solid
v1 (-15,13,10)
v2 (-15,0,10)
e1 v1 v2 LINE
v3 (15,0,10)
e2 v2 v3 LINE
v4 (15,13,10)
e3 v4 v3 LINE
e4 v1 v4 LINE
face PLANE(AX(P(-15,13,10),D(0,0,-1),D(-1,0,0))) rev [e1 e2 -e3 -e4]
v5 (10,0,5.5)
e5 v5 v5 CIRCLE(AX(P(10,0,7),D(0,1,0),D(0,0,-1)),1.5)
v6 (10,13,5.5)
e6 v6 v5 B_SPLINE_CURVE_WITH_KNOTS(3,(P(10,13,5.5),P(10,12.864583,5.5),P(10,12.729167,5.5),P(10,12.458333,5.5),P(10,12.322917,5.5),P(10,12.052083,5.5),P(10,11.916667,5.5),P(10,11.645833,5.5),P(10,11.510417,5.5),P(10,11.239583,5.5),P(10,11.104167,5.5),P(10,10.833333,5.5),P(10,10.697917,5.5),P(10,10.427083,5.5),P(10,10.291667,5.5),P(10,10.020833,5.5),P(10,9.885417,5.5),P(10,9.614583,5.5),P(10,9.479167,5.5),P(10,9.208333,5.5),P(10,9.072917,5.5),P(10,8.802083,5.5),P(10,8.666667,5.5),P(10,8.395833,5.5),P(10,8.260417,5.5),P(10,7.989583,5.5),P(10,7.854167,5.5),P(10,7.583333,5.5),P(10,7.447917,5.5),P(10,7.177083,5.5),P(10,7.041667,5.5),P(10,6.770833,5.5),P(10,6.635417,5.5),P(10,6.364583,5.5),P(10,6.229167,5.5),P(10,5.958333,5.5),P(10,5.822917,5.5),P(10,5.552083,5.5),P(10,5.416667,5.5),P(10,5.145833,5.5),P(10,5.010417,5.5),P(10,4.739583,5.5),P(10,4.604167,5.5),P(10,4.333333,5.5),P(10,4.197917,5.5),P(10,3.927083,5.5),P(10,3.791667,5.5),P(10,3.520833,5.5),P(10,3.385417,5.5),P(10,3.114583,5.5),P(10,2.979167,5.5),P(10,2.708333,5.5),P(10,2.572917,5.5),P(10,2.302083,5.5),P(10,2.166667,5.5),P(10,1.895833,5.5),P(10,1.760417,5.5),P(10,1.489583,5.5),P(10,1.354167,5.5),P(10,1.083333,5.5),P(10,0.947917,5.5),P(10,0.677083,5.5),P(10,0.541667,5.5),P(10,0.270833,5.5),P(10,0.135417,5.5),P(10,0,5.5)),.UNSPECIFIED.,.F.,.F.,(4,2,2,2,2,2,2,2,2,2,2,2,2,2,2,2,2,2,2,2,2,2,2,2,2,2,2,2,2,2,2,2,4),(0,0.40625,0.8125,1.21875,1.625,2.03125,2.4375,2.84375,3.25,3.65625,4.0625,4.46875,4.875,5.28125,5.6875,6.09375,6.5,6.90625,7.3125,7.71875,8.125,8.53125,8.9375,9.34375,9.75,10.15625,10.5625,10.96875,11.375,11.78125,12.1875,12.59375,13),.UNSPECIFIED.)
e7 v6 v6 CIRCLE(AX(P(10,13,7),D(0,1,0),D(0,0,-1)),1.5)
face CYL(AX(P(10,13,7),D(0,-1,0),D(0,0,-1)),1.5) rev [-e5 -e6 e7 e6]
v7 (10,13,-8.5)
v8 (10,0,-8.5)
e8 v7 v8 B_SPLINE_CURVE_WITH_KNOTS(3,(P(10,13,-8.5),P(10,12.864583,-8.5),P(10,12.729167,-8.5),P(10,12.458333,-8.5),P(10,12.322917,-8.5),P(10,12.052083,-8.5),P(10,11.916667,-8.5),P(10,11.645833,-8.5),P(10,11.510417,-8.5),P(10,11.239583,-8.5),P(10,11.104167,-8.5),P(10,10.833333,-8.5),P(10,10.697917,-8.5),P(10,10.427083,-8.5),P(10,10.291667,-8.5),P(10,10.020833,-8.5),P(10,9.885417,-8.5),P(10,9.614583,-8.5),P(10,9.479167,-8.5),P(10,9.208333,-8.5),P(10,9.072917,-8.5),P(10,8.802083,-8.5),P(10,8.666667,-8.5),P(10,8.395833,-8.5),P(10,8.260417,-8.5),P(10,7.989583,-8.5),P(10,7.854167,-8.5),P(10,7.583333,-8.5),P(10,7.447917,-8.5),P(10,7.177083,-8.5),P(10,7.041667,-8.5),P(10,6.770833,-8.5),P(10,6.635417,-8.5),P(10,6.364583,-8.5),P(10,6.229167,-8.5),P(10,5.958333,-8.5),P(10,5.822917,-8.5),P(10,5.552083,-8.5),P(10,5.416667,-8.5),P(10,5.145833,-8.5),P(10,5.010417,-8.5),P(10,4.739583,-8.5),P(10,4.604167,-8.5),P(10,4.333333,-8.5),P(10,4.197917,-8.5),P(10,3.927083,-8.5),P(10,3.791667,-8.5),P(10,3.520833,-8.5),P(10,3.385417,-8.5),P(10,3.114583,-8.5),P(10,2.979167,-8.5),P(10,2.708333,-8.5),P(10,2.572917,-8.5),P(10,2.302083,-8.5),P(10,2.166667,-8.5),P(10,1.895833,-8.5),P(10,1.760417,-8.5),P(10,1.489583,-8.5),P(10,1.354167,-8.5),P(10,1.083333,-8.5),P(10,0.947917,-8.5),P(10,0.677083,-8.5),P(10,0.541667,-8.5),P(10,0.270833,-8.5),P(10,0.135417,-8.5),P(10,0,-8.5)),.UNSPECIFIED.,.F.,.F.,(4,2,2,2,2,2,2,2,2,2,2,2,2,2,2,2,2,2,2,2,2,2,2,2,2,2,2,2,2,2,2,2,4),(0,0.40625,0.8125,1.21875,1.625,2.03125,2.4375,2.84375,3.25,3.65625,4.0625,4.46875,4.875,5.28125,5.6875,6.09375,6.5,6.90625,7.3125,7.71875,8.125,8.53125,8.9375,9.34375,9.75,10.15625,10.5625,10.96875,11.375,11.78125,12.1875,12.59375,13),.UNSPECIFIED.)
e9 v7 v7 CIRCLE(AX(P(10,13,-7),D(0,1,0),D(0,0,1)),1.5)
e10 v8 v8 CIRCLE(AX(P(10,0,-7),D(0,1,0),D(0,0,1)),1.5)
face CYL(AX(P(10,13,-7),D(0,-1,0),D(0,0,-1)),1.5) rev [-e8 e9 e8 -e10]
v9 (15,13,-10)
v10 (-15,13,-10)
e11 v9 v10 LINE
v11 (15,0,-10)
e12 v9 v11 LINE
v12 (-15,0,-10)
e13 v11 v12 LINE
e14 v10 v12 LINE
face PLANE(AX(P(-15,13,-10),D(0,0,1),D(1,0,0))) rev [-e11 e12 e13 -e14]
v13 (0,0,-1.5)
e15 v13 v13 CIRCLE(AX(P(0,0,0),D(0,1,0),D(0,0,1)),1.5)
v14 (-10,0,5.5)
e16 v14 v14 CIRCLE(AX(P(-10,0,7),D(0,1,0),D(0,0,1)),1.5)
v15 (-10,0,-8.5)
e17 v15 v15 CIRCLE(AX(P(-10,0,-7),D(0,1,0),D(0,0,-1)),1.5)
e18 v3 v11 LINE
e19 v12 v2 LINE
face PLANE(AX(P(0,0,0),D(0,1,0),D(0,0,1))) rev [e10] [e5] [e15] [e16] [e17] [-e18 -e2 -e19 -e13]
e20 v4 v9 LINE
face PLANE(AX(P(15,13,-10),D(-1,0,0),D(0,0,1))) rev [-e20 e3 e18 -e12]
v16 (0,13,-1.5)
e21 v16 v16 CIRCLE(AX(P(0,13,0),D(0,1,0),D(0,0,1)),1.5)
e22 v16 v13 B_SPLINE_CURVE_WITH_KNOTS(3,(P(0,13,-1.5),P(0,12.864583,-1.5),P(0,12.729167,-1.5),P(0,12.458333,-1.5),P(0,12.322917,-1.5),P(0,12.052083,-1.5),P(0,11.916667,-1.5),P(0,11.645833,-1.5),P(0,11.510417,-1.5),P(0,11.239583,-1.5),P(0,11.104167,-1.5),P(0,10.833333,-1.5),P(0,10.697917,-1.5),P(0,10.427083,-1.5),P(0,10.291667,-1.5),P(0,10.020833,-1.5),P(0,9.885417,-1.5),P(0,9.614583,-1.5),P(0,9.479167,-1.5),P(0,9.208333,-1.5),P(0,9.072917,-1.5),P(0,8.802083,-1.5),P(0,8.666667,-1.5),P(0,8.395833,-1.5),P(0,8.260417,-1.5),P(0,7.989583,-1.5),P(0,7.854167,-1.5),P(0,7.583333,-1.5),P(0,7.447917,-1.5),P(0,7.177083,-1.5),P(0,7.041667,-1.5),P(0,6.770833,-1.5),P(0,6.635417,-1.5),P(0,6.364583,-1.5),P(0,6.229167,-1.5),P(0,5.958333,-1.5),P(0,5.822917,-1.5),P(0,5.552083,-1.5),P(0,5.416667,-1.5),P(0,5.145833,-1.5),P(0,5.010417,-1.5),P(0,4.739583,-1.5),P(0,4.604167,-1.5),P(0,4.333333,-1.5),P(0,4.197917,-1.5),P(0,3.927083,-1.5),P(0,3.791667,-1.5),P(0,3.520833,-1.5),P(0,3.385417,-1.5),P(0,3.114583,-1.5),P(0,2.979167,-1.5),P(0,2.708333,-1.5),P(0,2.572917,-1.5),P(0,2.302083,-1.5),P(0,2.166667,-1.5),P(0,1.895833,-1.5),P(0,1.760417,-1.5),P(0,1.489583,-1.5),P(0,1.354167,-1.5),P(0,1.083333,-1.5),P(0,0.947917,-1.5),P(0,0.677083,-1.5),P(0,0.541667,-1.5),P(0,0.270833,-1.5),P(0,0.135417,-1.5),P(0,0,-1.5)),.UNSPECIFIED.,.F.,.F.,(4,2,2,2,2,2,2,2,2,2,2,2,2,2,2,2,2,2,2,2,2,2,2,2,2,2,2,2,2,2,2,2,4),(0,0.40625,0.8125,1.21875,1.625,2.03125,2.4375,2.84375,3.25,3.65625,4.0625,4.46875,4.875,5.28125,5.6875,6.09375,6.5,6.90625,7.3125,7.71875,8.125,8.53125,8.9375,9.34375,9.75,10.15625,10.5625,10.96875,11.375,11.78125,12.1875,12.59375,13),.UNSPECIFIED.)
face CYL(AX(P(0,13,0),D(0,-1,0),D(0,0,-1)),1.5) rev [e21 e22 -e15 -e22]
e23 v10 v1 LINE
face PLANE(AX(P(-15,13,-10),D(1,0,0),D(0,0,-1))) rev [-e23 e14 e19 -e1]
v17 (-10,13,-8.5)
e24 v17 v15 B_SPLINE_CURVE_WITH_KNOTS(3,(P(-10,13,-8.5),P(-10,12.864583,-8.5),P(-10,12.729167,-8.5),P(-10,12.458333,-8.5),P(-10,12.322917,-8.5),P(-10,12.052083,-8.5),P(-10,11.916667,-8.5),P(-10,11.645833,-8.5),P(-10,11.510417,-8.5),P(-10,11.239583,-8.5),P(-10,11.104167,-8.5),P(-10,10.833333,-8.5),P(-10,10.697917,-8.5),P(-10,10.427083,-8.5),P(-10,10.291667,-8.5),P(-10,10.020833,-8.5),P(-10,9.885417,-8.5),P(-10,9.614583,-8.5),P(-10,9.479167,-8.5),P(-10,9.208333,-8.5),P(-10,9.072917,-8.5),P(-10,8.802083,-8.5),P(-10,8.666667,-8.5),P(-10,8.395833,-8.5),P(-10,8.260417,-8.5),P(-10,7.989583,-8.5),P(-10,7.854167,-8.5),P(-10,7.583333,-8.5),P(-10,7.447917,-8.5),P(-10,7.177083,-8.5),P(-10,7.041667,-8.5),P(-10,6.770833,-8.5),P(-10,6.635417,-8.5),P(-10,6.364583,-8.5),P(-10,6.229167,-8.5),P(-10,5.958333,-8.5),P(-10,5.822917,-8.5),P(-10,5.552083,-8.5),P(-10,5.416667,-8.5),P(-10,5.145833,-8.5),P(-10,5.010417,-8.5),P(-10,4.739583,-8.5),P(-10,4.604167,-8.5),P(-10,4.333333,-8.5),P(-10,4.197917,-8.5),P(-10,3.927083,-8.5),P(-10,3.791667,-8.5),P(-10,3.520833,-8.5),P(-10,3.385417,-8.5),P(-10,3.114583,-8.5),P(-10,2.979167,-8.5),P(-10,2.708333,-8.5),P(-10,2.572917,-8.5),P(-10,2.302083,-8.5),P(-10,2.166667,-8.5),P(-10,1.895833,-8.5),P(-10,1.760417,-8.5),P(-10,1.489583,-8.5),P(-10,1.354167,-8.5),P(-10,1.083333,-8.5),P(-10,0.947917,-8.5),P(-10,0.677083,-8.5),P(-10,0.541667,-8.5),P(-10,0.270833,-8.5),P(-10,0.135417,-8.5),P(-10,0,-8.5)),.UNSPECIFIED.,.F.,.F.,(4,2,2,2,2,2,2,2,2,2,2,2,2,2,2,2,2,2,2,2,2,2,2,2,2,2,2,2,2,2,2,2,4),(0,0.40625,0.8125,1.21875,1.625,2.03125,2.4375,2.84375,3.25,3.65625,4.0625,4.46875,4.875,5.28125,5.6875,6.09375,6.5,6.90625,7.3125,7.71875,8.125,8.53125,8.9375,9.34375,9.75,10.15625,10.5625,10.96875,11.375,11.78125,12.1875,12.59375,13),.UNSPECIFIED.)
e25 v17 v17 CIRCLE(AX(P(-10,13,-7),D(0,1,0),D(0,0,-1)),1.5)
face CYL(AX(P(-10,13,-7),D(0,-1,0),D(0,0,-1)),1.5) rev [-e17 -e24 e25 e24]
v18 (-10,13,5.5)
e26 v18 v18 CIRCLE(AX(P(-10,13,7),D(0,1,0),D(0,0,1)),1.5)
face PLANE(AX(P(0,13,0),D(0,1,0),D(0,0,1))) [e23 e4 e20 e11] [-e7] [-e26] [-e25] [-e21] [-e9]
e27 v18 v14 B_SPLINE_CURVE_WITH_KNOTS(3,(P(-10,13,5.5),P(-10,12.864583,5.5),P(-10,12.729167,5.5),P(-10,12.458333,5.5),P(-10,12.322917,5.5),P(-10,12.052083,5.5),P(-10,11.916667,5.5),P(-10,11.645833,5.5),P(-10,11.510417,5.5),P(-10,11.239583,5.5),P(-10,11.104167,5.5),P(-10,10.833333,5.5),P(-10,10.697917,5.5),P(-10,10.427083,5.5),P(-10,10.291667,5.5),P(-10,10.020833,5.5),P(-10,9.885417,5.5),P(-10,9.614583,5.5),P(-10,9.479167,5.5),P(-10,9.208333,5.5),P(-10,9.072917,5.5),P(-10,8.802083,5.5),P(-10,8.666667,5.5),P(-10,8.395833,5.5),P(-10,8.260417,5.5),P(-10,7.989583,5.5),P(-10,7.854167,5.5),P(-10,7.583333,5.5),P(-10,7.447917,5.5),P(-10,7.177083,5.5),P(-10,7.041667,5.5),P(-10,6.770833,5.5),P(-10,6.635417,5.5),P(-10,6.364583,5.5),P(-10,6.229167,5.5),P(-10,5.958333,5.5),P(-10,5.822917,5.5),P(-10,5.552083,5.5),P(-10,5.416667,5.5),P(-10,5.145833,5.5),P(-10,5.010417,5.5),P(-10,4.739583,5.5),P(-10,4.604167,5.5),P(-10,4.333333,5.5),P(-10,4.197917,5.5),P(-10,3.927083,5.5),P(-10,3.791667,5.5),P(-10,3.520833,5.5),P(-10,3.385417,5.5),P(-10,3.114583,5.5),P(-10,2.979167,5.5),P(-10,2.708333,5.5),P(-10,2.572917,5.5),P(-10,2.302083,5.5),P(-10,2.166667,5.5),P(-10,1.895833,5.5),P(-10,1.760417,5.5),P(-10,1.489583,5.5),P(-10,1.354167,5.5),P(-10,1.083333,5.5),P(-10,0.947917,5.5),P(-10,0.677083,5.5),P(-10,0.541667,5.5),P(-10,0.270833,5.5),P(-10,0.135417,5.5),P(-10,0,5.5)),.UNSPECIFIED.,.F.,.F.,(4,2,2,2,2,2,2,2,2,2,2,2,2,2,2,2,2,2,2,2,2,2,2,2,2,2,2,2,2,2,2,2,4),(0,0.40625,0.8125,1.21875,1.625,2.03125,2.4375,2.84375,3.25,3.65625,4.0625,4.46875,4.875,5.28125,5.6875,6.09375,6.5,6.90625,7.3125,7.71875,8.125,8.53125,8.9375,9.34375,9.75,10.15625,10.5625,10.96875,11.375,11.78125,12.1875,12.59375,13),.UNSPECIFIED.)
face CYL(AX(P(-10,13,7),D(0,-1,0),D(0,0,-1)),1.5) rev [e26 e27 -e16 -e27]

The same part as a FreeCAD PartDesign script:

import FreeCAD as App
import Part
import Sketcher


def add_polygon(sketch, points):
    """Adds a closed chain of lines whose ends are joined by coincident constraints."""
    first, n = sketch.GeometryCount, len(points)
    for a, b in zip(points, points[1:] + points[:1]):
        sketch.addGeometry(Part.LineSegment(App.Vector(*a, 0), App.Vector(*b, 0)), False)
    for i in range(n):
        sketch.addConstraint(Sketcher.Constraint("Coincident", first + i, 2, first + (i + 1) % n, 1))

doc = App.newDocument("Part")
body = doc.addObject("PartDesign::Body", "Body")

# Sketch on XZ plane
sketch1 = body.newObject("Sketcher::SketchObject", "Sketch")
sketch1.AttachmentSupport = (doc.getObject("XZ_Plane"), [""])
sketch1.MapMode = "FlatFace"
add_polygon(sketch1, [(-15, -10), (-15, 10), (15, 10), (15, -10)])  # lines 0-3
sketch1.addGeometry(Part.Circle(App.Vector(-10, 7, 0), App.Vector(0, 0, 1), 1.5), False)  # 4
sketch1.addGeometry(Part.Circle(App.Vector(10, 7, 0), App.Vector(0, 0, 1), 1.5), False)  # 5
sketch1.addGeometry(Part.Circle(App.Vector(-10, -7, 0), App.Vector(0, 0, 1), 1.5), False)  # 6
sketch1.addGeometry(Part.Circle(App.Vector(0, 0, 0), App.Vector(0, 0, 1), 1.5), False)  # 7
sketch1.addGeometry(Part.Circle(App.Vector(10, -7, 0), App.Vector(0, 0, 1), 1.5), False)  # 8
sketch1.addConstraint(Sketcher.Constraint("Vertical", 0))
sketch1.addConstraint(Sketcher.Constraint("Horizontal", 1))
sketch1.addConstraint(Sketcher.Constraint("Vertical", 2))
sketch1.addConstraint(Sketcher.Constraint("Horizontal", 3))
sketch1.addConstraint(Sketcher.Constraint("Coincident", 7, 3, -1, 1))
sketch1.addConstraint(Sketcher.Constraint("Equal", 4, 5))
sketch1.addConstraint(Sketcher.Constraint("Equal", 5, 6))
sketch1.addConstraint(Sketcher.Constraint("Equal", 6, 7))
sketch1.addConstraint(Sketcher.Constraint("Equal", 7, 8))
sketch1.addConstraint(Sketcher.Constraint("Symmetric", 5, 3, 6, 3, -1, 1))
sketch1.addConstraint(Sketcher.Constraint("Symmetric", 4, 3, 8, 3, -1, 1))
sketch1.addConstraint(Sketcher.Constraint("Symmetric", 0, 2, 2, 2, -1, 1))
sketch1.addConstraint(Sketcher.Constraint("Symmetric", 4, 3, 5, 3, -2))
sketch1.addConstraint(Sketcher.Constraint("Diameter", 4, 3.0))
sketch1.addConstraint(Sketcher.Constraint("DistanceX", 1, 1, 1, 2, 30.0))
sketch1.addConstraint(Sketcher.Constraint("DistanceY", 0, 1, 0, 2, 20.0))
sketch1.addConstraint(Sketcher.Constraint("DistanceX", 4, 3, -1, 1, 10.0))
sketch1.addConstraint(Sketcher.Constraint("DistanceY", -1, 1, 4, 3, 7.0))
pad1 = body.newObject("PartDesign::Pad", "Pad")
pad1.Profile = sketch1
pad1.Length = 13
pad1.Reversed = True

doc.recompute()
